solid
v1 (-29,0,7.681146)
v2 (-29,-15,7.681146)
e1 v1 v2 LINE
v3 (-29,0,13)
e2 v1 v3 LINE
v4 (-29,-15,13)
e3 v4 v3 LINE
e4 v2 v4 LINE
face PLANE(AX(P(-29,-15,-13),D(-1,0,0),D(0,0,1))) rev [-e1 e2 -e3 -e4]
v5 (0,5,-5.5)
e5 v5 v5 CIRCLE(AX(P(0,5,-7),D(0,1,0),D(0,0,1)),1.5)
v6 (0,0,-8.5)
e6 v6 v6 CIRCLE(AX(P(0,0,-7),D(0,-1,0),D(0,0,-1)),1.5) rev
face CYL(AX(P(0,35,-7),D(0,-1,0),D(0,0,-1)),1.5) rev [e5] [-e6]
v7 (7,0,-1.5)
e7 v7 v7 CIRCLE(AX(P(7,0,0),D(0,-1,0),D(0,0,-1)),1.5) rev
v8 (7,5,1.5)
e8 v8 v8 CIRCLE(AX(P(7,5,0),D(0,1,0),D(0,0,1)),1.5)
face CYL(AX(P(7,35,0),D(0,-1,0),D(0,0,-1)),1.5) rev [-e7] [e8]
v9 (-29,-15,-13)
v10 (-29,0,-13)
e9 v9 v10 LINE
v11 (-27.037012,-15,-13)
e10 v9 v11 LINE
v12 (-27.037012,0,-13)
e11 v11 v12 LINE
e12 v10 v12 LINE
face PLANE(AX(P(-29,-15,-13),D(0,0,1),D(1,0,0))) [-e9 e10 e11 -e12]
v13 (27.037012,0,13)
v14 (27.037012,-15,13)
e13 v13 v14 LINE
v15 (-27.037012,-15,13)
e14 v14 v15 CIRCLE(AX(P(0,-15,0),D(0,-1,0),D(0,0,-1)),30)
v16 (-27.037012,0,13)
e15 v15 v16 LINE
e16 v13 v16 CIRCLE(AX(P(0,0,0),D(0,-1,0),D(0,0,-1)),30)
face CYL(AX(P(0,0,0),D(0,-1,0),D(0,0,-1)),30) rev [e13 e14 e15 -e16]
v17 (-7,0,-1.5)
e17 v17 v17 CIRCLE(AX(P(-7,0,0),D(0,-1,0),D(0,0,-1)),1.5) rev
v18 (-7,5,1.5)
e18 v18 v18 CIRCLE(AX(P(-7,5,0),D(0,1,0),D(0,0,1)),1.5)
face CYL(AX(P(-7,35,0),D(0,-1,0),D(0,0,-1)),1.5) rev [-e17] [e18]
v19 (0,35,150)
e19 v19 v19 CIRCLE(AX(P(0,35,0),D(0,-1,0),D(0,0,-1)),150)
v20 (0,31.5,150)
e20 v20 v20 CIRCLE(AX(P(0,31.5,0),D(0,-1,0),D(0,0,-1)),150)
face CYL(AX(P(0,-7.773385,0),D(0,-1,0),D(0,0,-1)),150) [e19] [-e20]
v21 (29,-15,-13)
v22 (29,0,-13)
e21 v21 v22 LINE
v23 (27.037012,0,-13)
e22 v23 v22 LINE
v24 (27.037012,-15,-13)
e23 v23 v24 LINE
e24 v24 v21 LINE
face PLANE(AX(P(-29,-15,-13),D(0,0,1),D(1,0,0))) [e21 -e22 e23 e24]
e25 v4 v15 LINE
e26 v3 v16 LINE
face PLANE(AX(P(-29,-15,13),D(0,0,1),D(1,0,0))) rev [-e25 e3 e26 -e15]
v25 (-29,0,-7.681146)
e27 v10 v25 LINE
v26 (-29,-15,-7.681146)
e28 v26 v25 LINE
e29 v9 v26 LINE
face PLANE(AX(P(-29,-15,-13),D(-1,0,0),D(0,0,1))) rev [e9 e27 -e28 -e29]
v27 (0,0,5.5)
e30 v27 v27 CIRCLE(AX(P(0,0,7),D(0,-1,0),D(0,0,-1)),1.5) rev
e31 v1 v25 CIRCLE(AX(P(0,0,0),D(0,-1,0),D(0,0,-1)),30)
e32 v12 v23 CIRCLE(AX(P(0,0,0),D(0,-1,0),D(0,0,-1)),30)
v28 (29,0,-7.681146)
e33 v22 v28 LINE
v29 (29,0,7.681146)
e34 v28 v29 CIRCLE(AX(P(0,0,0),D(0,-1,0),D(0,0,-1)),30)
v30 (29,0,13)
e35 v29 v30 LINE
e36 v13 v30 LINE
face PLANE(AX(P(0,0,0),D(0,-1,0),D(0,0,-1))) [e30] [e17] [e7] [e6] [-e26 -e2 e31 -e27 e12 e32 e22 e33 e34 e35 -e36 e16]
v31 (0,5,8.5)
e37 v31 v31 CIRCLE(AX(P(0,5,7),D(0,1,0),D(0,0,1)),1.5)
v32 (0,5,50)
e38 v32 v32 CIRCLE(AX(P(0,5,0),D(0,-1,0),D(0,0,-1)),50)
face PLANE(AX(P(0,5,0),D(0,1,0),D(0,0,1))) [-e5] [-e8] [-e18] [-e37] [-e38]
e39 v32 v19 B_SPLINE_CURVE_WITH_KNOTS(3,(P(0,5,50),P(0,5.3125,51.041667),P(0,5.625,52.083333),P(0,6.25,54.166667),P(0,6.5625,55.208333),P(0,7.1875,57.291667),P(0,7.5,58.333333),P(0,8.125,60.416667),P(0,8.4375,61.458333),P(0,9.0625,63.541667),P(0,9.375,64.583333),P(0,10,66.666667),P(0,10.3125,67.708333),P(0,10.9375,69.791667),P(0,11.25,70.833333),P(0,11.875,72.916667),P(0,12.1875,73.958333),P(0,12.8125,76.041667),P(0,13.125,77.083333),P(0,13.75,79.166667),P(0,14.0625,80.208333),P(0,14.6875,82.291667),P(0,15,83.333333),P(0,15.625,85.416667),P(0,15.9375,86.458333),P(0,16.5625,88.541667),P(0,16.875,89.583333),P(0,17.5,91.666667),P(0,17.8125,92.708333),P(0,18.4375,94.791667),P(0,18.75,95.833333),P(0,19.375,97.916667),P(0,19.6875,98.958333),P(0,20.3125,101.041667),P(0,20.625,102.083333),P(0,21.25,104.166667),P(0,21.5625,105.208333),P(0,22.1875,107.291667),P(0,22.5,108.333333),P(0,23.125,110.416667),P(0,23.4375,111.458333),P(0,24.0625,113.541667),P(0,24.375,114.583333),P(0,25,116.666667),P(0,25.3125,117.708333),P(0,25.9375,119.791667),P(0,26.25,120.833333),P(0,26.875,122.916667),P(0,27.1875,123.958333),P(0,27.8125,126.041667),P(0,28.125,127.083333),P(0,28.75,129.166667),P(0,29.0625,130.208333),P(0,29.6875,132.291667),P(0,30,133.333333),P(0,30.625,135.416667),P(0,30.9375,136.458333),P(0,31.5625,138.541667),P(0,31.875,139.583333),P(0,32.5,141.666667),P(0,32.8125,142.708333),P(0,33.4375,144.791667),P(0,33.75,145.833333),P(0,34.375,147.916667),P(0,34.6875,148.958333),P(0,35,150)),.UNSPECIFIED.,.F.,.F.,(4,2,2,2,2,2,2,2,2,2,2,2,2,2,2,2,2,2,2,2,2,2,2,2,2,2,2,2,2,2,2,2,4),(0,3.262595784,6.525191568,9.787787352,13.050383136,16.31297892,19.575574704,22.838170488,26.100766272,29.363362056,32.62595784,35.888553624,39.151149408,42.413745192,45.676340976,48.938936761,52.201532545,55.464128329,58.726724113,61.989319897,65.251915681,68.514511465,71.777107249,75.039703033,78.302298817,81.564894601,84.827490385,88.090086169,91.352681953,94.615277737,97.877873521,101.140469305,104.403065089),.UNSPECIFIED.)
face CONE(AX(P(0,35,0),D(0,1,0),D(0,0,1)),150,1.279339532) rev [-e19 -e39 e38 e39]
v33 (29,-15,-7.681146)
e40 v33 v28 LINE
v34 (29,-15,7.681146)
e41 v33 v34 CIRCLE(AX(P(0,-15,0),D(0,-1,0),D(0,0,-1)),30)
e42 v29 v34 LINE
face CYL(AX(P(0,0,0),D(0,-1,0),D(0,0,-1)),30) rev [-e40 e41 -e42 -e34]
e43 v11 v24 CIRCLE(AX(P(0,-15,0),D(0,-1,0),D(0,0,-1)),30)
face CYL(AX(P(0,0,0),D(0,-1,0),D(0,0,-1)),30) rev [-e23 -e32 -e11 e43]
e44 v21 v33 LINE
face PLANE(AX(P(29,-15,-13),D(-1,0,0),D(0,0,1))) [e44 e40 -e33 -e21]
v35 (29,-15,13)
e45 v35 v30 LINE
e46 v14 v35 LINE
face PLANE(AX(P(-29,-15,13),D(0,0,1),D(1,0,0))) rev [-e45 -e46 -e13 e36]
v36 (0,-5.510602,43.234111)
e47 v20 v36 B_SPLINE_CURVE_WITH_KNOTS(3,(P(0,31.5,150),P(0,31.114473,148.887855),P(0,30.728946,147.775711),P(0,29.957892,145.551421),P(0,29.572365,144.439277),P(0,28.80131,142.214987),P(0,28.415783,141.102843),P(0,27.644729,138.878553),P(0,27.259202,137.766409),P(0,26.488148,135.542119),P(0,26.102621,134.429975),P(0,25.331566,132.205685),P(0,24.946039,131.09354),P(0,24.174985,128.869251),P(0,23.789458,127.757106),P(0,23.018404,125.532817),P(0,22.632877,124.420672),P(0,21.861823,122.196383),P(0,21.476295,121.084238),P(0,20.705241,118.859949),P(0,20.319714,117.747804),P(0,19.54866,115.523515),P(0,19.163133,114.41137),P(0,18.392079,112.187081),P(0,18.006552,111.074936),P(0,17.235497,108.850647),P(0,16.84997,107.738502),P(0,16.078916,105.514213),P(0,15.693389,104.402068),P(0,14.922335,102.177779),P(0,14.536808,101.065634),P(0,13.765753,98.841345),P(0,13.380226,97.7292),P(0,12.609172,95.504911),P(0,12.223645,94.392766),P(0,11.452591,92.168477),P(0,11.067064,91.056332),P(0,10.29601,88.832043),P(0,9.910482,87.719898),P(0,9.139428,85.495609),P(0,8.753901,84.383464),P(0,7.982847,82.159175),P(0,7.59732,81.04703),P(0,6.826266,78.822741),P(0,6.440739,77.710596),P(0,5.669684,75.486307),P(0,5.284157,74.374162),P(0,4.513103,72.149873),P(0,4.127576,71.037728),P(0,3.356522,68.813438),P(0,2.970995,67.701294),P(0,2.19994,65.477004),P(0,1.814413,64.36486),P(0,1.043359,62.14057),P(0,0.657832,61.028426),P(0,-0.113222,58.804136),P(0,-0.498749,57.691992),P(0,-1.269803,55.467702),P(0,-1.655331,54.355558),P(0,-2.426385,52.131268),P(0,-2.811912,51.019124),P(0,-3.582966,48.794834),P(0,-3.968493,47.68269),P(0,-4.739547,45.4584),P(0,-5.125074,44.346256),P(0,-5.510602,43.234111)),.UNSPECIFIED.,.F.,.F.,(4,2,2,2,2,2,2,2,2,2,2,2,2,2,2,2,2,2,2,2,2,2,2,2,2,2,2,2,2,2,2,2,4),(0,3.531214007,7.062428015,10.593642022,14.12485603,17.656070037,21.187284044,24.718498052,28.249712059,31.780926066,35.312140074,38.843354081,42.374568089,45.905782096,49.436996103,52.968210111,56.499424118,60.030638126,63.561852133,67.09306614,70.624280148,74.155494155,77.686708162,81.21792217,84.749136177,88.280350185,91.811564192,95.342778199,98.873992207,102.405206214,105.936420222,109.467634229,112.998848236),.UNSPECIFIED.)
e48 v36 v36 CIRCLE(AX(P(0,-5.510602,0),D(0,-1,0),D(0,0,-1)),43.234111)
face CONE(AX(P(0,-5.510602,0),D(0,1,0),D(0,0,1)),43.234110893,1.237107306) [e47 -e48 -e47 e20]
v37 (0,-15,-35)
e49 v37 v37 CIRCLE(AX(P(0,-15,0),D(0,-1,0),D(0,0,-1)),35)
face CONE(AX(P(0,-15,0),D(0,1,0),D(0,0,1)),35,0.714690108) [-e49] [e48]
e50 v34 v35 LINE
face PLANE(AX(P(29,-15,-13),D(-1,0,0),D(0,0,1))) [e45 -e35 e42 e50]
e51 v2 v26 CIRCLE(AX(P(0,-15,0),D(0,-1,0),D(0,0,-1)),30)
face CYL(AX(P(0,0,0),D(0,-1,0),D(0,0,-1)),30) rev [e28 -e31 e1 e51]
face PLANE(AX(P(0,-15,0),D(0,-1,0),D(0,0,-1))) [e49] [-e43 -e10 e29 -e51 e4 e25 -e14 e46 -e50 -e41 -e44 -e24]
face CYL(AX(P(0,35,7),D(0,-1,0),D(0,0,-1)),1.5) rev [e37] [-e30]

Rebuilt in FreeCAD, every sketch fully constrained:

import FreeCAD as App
import Part
import Sketcher
from FreeCAD import Vector
Q = App.Units.Quantity

doc = App.newDocument("Part")
body = doc.addObject("PartDesign::Body", "Body")

sketch1 = doc.addObject("Sketcher::SketchObject", "Sketch")
body.addObject(sketch1)
sketch1.AttachmentSupport = (doc.XY_Plane, [""])
sketch1.MapMode = "FlatFace"
sketch1.addGeometry([
    Part.LineSegment(Vector(0, 0, 0), Vector(35, 0, 0)),
    Part.LineSegment(Vector(35, 0, 0), Vector(43.2, 9.5, 0)),
    Part.LineSegment(Vector(43.2, 9.5, 0), Vector(150, 46.5, 0)),
    Part.LineSegment(Vector(150, 46.5, 0), Vector(150, 50, 0)),
    Part.LineSegment(Vector(150, 50, 0), Vector(50, 20, 0)),
    Part.LineSegment(Vector(50, 20, 0), Vector(0, 20, 0)),
    Part.LineSegment(Vector(0, 20, 0), Vector(0, 0, 0)),
], False)
sketch1.addConstraint([
    Sketcher.Constraint("Coincident", 0, 2, 1, 1),
    Sketcher.Constraint("Coincident", 1, 2, 2, 1),
    Sketcher.Constraint("Coincident", 2, 2, 3, 1),
    Sketcher.Constraint("Coincident", 3, 2, 4, 1),
    Sketcher.Constraint("Coincident", 4, 2, 5, 1),
    Sketcher.Constraint("Coincident", 5, 2, 6, 1),
    Sketcher.Constraint("Coincident", 6, 2, 0, 1),
    Sketcher.Constraint("Horizontal", 0),
    Sketcher.Constraint("Vertical", 3),
    Sketcher.Constraint("Horizontal", 5),
    Sketcher.Constraint("Vertical", 6),
    Sketcher.Constraint("Coincident", 6, 2, -1, 1),
    Sketcher.Constraint("DistanceX", 0, 1, 0, 2, Q("35 mm")),
    Sketcher.Constraint("DistanceX", 5, 2, 5, 1, Q("50 mm")),
    Sketcher.Constraint("DistanceY", 6, 2, 6, 1, Q("20 mm")),
    Sketcher.Constraint("DistanceY", 3, 1, 3, 2, Q("3.5 mm")),
    Sketcher.Constraint("DistanceX", -1, 1, 2, 2, Q("150 mm")),
    Sketcher.Constraint("DistanceY", -1, 1, 3, 2, Q("50 mm")),
    Sketcher.Constraint("DistanceY", -1, 1, 1, 2, Q("9.489398 mm")),
    Sketcher.Constraint("Distance", 2, Q("112.998848 mm")),
])
revolution = doc.addObject("PartDesign::Revolution", "Revolution")
body.addObject(revolution)
revolution.Profile = sketch1
revolution.ReferenceAxis = (sketch1, ["V_Axis"])
revolution.Angle = 360

sketch2 = doc.addObject("Sketcher::SketchObject", "Sketch001")
body.addObject(sketch2)
sketch2.AttachmentSupport = (doc.XZ_Plane, [""])
sketch2.MapMode = "FlatFace"
sketch2.addGeometry([
    Part.Circle(Vector(0, 7, 0), Vector(0, 0, 1), 1.5),
    Part.Circle(Vector(7, 0, 0), Vector(0, 0, 1), 1.5),
    Part.Circle(Vector(0, -7, 0), Vector(0, 0, 1), 1.5),
    Part.Circle(Vector(-7, 0, 0), Vector(0, 0, 1), 1.5),
], False)
sketch2.addConstraint([
    Sketcher.Constraint("Equal", 0, 1),
    Sketcher.Constraint("Equal", 1, 2),
    Sketcher.Constraint("Equal", 2, 3),
    Sketcher.Constraint("Symmetric", 0, 3, 2, 3, -1, 1),
    Sketcher.Constraint("Symmetric", 1, 3, 3, 3, -1, 1),
    Sketcher.Constraint("PointOnObject", 0, 3, -2),
    Sketcher.Constraint("PointOnObject", 1, 3, -1),
    Sketcher.Constraint("Diameter", 0, Q("3 mm")),
    Sketcher.Constraint("DistanceY", -1, 1, 0, 3, Q("7 mm")),
    Sketcher.Constraint("DistanceX", -1, 1, 1, 3, Q("7 mm")),
])
pocket1 = doc.addObject("PartDesign::Pocket", "Pocket")
body.addObject(pocket1)
pocket1.Profile = sketch2
pocket1.Type = "ThroughAll"

sketch3 = doc.addObject("Sketcher::SketchObject", "Sketch002")
body.addObject(sketch3)
sketch3.AttachmentSupport = (doc.XZ_Plane, [""])
sketch3.MapMode = "FlatFace"
sketch3.addGeometry(Part.Circle(Vector(0, 0, 0), Vector(0, 0, 1), 30), False)
sketch3.addConstraint([
    Sketcher.Constraint("Coincident", 0, 3, -1, 1),
    Sketcher.Constraint("Diameter", 0, Q("60 mm")),
])
pocket2 = doc.addObject("PartDesign::Pocket", "Pocket001")
body.addObject(pocket2)
pocket2.Profile = sketch3
pocket2.Length = 15

sketch4 = doc.addObject("Sketcher::SketchObject", "Sketch003")
body.addObject(sketch4)
sketch4.AttachmentSupport = (doc.XZ_Plane, [""])
sketch4.MapMode = "FlatFace"
sketch4.AttachmentOffset = App.Placement(Vector(0, 0, -15), App.Rotation())
sketch4.addGeometry([
    Part.LineSegment(Vector(-29, 13, 0), Vector(-29, -13, 0)),
    Part.LineSegment(Vector(-29, -13, 0), Vector(29, -13, 0)),
    Part.LineSegment(Vector(29, -13, 0), Vector(29, 13, 0)),
    Part.LineSegment(Vector(29, 13, 0), Vector(-29, 13, 0)),
], False)
sketch4.addConstraint([
    Sketcher.Constraint("Coincident", 0, 2, 1, 1),
    Sketcher.Constraint("Coincident", 1, 2, 2, 1),
    Sketcher.Constraint("Coincident", 2, 2, 3, 1),
    Sketcher.Constraint("Coincident", 3, 2, 0, 1),
    Sketcher.Constraint("Vertical", 0),
    Sketcher.Constraint("Horizontal", 1),
    Sketcher.Constraint("Vertical", 2),
    Sketcher.Constraint("Horizontal", 3),
    Sketcher.Constraint("Symmetric", 0, 2, 2, 2, -1, 1),
    Sketcher.Constraint("DistanceX", 1, 1, 1, 2, Q("58 mm")),
    Sketcher.Constraint("DistanceY", 0, 2, 0, 1, Q("26 mm")),
])
pocket3 = doc.addObject("PartDesign::Pocket", "Pocket002")
body.addObject(pocket3)
pocket3.Profile = sketch4
pocket3.Type = "ThroughAll"
pocket3.Reversed = True
body2 = doc.addObject("PartDesign::Body", "Body001")
doc.recompute()

body.Placement = App.Placement(Vector(0, -15, 0), App.Rotation(Vector(0, 0, 1), 0))
boolean = doc.addObject("PartDesign::Boolean", "Boolean")
body2.addObject(boolean)
boolean.Type = "Fuse"
boolean.addObjects([body])

doc.recompute()
